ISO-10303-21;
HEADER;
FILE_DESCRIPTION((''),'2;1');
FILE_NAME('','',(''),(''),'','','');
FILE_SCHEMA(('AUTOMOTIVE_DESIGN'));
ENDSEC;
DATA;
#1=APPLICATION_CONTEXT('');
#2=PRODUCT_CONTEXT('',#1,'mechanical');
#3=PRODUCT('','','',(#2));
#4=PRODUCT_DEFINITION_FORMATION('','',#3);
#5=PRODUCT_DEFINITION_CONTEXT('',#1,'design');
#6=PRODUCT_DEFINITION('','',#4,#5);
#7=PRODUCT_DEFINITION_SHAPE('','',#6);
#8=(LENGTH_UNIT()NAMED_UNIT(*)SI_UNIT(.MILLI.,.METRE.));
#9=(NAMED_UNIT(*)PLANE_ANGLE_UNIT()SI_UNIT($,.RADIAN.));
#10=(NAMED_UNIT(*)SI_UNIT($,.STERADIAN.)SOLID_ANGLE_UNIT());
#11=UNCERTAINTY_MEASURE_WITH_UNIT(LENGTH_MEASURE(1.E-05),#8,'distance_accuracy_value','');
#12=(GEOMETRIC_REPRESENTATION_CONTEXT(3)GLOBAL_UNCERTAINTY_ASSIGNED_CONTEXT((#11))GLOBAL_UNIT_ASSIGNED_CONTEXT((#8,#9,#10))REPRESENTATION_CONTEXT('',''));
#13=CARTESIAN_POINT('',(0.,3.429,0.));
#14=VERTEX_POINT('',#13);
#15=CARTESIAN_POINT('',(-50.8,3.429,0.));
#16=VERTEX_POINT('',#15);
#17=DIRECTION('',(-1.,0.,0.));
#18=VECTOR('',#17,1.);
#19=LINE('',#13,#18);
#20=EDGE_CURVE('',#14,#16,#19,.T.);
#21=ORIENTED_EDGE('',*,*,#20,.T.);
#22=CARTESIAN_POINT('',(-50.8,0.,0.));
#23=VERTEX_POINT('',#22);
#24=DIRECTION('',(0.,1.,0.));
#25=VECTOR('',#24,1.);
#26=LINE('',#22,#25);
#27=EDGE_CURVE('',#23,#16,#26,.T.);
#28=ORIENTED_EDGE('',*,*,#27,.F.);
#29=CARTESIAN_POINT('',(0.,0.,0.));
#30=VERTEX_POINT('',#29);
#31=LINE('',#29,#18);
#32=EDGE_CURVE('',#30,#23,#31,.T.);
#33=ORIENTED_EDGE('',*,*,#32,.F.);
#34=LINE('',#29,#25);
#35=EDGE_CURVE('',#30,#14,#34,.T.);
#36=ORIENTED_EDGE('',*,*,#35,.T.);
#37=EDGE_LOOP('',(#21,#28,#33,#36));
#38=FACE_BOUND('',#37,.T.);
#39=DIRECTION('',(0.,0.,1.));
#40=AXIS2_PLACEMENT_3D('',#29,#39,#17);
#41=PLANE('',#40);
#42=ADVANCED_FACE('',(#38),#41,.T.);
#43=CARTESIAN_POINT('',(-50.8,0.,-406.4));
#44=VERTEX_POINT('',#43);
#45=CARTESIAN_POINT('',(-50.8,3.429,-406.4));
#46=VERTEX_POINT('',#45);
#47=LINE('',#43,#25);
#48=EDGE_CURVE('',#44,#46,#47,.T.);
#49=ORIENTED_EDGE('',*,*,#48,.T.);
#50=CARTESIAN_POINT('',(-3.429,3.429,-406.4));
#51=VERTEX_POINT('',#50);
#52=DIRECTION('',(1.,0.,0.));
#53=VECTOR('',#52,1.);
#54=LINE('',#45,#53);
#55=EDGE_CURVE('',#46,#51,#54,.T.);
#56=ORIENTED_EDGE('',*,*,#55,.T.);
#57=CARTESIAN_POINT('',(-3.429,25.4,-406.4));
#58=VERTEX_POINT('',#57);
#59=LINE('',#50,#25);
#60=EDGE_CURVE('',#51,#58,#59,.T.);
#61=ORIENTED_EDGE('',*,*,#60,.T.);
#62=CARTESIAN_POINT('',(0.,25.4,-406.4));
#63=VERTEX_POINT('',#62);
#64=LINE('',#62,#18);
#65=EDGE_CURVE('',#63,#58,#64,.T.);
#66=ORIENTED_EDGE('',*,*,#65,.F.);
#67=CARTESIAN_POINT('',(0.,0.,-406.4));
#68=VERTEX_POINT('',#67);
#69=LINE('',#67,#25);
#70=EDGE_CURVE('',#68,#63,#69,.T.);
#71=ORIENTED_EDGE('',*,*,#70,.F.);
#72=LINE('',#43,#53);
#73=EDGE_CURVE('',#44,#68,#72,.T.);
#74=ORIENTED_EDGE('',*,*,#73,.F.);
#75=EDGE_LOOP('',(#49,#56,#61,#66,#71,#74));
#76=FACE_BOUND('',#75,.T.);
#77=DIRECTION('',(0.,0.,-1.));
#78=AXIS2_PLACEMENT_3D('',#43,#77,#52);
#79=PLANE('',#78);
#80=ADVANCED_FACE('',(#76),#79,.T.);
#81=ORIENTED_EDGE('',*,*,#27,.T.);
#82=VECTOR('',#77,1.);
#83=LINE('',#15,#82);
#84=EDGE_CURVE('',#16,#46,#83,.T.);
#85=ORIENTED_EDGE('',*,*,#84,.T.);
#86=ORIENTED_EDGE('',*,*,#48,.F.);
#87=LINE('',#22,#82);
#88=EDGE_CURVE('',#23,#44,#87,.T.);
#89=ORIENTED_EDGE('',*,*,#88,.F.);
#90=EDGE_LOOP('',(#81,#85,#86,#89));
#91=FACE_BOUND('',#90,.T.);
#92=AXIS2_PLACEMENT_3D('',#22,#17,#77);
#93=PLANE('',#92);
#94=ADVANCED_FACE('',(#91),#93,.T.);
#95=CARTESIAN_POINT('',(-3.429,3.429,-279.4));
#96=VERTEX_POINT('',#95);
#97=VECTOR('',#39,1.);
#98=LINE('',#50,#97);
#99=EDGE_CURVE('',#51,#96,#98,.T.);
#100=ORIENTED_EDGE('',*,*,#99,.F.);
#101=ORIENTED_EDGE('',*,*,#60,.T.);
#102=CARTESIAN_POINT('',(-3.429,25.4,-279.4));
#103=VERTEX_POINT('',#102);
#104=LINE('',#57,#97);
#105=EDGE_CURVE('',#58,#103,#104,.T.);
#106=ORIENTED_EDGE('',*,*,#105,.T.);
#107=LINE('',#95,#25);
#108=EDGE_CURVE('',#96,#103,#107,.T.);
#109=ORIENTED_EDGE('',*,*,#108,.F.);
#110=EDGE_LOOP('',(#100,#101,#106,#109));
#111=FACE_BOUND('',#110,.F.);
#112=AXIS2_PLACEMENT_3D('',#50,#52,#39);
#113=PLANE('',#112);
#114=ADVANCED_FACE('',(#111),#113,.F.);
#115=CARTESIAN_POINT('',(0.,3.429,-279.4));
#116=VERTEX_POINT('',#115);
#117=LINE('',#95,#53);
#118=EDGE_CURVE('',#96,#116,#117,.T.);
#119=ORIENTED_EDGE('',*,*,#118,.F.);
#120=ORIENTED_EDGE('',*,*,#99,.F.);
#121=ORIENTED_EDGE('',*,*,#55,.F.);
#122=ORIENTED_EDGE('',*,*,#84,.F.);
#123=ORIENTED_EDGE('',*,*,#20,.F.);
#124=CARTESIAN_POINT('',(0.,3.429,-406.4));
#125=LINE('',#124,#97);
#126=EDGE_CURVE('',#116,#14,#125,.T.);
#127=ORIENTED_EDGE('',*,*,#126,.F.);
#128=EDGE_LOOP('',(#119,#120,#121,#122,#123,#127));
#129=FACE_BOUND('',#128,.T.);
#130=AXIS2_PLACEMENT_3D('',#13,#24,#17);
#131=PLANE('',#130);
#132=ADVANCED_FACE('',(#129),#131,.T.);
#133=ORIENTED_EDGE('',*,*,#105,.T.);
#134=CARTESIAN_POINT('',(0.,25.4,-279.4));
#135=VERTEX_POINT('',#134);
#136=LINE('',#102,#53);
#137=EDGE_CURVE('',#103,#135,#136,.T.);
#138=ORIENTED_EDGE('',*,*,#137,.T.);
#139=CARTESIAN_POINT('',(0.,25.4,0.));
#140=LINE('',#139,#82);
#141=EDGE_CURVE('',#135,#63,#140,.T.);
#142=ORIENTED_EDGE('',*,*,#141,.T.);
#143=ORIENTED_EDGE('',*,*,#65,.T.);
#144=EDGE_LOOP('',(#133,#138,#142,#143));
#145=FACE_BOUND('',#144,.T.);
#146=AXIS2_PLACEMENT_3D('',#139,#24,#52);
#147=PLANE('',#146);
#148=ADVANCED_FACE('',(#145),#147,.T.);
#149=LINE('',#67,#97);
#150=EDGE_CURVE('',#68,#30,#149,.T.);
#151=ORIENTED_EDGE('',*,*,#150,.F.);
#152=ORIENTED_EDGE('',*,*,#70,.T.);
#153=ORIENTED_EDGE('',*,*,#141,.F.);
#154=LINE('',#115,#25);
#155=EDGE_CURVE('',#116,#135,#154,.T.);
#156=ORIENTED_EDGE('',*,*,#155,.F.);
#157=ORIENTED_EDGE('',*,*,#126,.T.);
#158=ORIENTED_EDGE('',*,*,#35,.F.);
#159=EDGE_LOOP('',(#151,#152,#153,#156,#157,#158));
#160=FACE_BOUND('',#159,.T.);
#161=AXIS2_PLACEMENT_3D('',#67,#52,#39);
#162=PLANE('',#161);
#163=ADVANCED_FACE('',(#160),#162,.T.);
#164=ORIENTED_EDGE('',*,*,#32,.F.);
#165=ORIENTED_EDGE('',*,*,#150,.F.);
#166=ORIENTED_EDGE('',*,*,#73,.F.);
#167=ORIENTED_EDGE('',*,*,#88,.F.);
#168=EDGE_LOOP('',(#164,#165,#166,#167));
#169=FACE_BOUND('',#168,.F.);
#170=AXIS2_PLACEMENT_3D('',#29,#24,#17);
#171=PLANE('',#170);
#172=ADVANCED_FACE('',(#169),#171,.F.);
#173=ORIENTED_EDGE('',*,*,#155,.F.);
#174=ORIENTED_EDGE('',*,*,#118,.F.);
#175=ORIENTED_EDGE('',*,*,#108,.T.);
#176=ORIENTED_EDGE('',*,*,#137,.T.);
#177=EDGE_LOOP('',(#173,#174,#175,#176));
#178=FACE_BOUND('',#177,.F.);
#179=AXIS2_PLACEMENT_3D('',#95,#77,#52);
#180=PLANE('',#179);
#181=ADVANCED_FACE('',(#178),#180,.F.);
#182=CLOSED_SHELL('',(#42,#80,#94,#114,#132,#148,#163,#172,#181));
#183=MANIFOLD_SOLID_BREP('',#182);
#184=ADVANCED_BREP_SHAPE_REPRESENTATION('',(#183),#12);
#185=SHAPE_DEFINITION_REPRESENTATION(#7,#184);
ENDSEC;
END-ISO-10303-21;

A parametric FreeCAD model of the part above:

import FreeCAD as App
import Part
import Sketcher

V = App.Vector
Q = App.Units.Quantity

doc = App.newDocument("Part")
body = doc.addObject("PartDesign::Body", "Body")

sketch1 = body.newObject("Sketcher::SketchObject", "Sketch")
sketch1.AttachmentSupport = (doc.getObject("XZ_Plane"), [""])
sketch1.MapMode = "FlatFace"
sketch1.addGeometry([
    Part.LineSegment(V(-50.8, 0, 0), V(0, 0, 0)),
    Part.LineSegment(V(0, 0, 0), V(0, -406.4, 0)),
    Part.LineSegment(V(0, -406.4, 0), V(-50.8, -406.4, 0)),
    Part.LineSegment(V(-50.8, -406.4, 0), V(-50.8, 0, 0)),
], False)
sketch1.addConstraint([
    Sketcher.Constraint("Coincident", 0, 2, 1, 1),
    Sketcher.Constraint("Coincident", 1, 2, 2, 1),
    Sketcher.Constraint("Coincident", 2, 2, 3, 1),
    Sketcher.Constraint("Coincident", 3, 2, 0, 1),
    Sketcher.Constraint("Horizontal", 0),
    Sketcher.Constraint("Vertical", 1),
    Sketcher.Constraint("Horizontal", 2),
    Sketcher.Constraint("Vertical", 3),
    Sketcher.Constraint("Coincident", 0, 2, -1, 1),
    Sketcher.Constraint("DistanceX", 0, 1, 0, 2, Q("2 in")),
    Sketcher.Constraint("DistanceY", 1, 2, 1, 1, Q("16 in")),
])
pad1 = body.newObject("PartDesign::Pad", "Pad")
pad1.Profile = sketch1
pad1.Length = Q("0.135 in")
pad1.Reversed = True

sketch2 = body.newObject("Sketcher::SketchObject", "Sketch001")
sketch2.AttachmentSupport = (doc.getObject("XZ_Plane"), [""])
sketch2.MapMode = "FlatFace"
sketch2.AttachmentOffset = App.Placement(V(0, 0, -0.135 * 25.4), App.Rotation())
sketch2.addGeometry([
    Part.LineSegment(V(-3.429, -279.4, 0), V(0, -279.4, 0)),
    Part.LineSegment(V(0, -279.4, 0), V(0, -406.4, 0)),
    Part.LineSegment(V(0, -406.4, 0), V(-3.429, -406.4, 0)),
    Part.LineSegment(V(-3.429, -406.4, 0), V(-3.429, -279.4, 0)),
], False)
sketch2.addConstraint([
    Sketcher.Constraint("Coincident", 0, 2, 1, 1),
    Sketcher.Constraint("Coincident", 1, 2, 2, 1),
    Sketcher.Constraint("Coincident", 2, 2, 3, 1),
    Sketcher.Constraint("Coincident", 3, 2, 0, 1),
    Sketcher.Constraint("Horizontal", 0),
    Sketcher.Constraint("Vertical", 1),
    Sketcher.Constraint("Horizontal", 2),
    Sketcher.Constraint("Vertical", 3),
    Sketcher.Constraint("PointOnObject", 0, 2, -2),
    Sketcher.Constraint("DistanceY", 1, 2, 1, 1, Q("5 in")),
    Sketcher.Constraint("DistanceX", 0, 1, 0, 2, Q("0.135 in")),
    Sketcher.Constraint("DistanceY", 0, 2, -1, 1, Q("11 in")),
])
pad2 = body.newObject("PartDesign::Pad", "Pad001")
pad2.Profile = sketch2
pad2.Length = Q("0.865 in")
pad2.Reversed = True

doc.recompute()
